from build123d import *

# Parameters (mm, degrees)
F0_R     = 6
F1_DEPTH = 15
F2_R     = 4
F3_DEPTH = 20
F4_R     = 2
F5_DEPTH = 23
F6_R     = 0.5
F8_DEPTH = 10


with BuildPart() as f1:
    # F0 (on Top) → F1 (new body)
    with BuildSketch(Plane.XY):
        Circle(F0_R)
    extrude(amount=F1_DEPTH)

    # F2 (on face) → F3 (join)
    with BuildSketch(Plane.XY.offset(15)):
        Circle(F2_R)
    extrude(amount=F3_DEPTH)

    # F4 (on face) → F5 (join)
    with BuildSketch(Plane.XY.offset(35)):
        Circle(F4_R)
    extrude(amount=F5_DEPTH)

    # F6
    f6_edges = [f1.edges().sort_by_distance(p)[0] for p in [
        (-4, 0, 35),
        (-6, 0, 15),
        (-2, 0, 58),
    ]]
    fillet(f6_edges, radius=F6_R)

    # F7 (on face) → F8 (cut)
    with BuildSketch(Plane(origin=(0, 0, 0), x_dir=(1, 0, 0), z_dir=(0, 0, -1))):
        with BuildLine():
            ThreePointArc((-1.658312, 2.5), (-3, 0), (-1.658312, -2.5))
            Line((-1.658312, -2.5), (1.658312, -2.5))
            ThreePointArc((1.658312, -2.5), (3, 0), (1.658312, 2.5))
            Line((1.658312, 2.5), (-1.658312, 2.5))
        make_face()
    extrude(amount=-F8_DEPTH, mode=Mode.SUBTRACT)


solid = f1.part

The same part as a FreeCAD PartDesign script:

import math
import FreeCAD as App
import Part
import Sketcher

V = App.Vector


def edges_at(feature, points):
    """Names of the edges that pass closest to the given points."""
    edges = feature.Shape.Edges
    near = lambda p: min(range(len(edges)), key=lambda i: edges[i].distToShape(Part.Vertex(*p))[0])
    return sorted({f"Edge{near(p) + 1}" for p in points})

doc = App.newDocument("Part")
body = doc.addObject("PartDesign::Body", "Body")

# Sketch on XY plane
sketch1 = doc.addObject("Sketcher::SketchObject", "Sketch")
body.addObject(sketch1)
sketch1.AttachmentSupport = (doc.XY_Plane, [""])
sketch1.MapMode = "FlatFace"
sketch1.addGeometry(Part.Circle(V(0, 0, 0), V(0, 0, 1), 6), False)
sketch1.addConstraint([
    Sketcher.Constraint("Coincident", 0, 3, -1, 1),
    Sketcher.Constraint("Diameter", 0, 12.0),
])
pad1 = doc.addObject("PartDesign::Pad", "Pad")
body.addObject(pad1)
pad1.Profile = sketch1
pad1.Length = 15

# Sketch on XY plane
sketch2 = doc.addObject("Sketcher::SketchObject", "Sketch001")
body.addObject(sketch2)
sketch2.AttachmentSupport = (doc.XY_Plane, [""])
sketch2.MapMode = "FlatFace"
sketch2.AttachmentOffset = App.Placement(V(0, 0, 15), App.Rotation())
sketch2.addGeometry(Part.Circle(V(0, 0, 0), V(0, 0, 1), 4), False)
sketch2.addConstraint([
    Sketcher.Constraint("Coincident", 0, 3, -1, 1),
    Sketcher.Constraint("Diameter", 0, 8.0),
])
pad2 = doc.addObject("PartDesign::Pad", "Pad001")
body.addObject(pad2)
pad2.Profile = sketch2
pad2.Length = 20

# Sketch on XY plane
sketch3 = doc.addObject("Sketcher::SketchObject", "Sketch002")
body.addObject(sketch3)
sketch3.AttachmentSupport = (doc.XY_Plane, [""])
sketch3.MapMode = "FlatFace"
sketch3.AttachmentOffset = App.Placement(V(0, 0, 35), App.Rotation())
sketch3.addGeometry(Part.Circle(V(0, 0, 0), V(0, 0, 1), 2), False)
sketch3.addConstraint([
    Sketcher.Constraint("Coincident", 0, 3, -1, 1),
    Sketcher.Constraint("Diameter", 0, 4.0),
])
pad3 = doc.addObject("PartDesign::Pad", "Pad002")
body.addObject(pad3)
pad3.Profile = sketch3
pad3.Length = 23
doc.recompute()

fillet = doc.addObject("PartDesign::Fillet", "Fillet")
body.addObject(fillet)
fillet.Base = (pad3, edges_at(pad3, [(-4, 0, 35), (-6, 0, 15), (-2, 0, 58)]))
fillet.Radius = 0.5

# Sketch on XY plane
sketch4 = doc.addObject("Sketcher::SketchObject", "Sketch003")
body.addObject(sketch4)
sketch4.AttachmentSupport = (doc.XY_Plane, [""])
sketch4.MapMode = "FlatFace"
sketch4.addGeometry([
    Part.ArcOfCircle(Part.Circle(V(0, 0, 0), V(0, 0, 1), 3), math.radians(123.557296), math.radians(236.442704)),
    Part.LineSegment(V(-1.658312, 2.5, 0), V(1.658312, 2.5, 0)),
    Part.ArcOfCircle(Part.Circle(V(0, 0, 0), V(0, 0, 1), 3), math.radians(-56.442704), math.radians(56.442704)),
    Part.LineSegment(V(1.658312, -2.5, 0), V(-1.658312, -2.5, 0)),
], False)
sketch4.addConstraint([
    Sketcher.Constraint("Coincident", 0, 1, 1, 1),
    Sketcher.Constraint("Coincident", 1, 2, 2, 2),
    Sketcher.Constraint("Coincident", 2, 1, 3, 1),
    Sketcher.Constraint("Coincident", 3, 2, 0, 2),
    Sketcher.Constraint("Horizontal", 1),
    Sketcher.Constraint("Horizontal", 3),
    Sketcher.Constraint("Coincident", 0, 3, -1, 1),
    Sketcher.Constraint("Coincident", 2, 3, -1, 1),
    Sketcher.Constraint("Equal", 0, 2),
    Sketcher.Constraint("Vertical", 1, 2, 2, 1),
    Sketcher.Constraint("Radius", 0, 3.0),
    Sketcher.Constraint("DistanceY", 2, 1, 1, 2, 5.0),
])
pocket1 = doc.addObject("PartDesign::Pocket", "Pocket")
body.addObject(pocket1)
pocket1.Profile = sketch4
pocket1.Length = 10
pocket1.Reversed = True

doc.recompute()
